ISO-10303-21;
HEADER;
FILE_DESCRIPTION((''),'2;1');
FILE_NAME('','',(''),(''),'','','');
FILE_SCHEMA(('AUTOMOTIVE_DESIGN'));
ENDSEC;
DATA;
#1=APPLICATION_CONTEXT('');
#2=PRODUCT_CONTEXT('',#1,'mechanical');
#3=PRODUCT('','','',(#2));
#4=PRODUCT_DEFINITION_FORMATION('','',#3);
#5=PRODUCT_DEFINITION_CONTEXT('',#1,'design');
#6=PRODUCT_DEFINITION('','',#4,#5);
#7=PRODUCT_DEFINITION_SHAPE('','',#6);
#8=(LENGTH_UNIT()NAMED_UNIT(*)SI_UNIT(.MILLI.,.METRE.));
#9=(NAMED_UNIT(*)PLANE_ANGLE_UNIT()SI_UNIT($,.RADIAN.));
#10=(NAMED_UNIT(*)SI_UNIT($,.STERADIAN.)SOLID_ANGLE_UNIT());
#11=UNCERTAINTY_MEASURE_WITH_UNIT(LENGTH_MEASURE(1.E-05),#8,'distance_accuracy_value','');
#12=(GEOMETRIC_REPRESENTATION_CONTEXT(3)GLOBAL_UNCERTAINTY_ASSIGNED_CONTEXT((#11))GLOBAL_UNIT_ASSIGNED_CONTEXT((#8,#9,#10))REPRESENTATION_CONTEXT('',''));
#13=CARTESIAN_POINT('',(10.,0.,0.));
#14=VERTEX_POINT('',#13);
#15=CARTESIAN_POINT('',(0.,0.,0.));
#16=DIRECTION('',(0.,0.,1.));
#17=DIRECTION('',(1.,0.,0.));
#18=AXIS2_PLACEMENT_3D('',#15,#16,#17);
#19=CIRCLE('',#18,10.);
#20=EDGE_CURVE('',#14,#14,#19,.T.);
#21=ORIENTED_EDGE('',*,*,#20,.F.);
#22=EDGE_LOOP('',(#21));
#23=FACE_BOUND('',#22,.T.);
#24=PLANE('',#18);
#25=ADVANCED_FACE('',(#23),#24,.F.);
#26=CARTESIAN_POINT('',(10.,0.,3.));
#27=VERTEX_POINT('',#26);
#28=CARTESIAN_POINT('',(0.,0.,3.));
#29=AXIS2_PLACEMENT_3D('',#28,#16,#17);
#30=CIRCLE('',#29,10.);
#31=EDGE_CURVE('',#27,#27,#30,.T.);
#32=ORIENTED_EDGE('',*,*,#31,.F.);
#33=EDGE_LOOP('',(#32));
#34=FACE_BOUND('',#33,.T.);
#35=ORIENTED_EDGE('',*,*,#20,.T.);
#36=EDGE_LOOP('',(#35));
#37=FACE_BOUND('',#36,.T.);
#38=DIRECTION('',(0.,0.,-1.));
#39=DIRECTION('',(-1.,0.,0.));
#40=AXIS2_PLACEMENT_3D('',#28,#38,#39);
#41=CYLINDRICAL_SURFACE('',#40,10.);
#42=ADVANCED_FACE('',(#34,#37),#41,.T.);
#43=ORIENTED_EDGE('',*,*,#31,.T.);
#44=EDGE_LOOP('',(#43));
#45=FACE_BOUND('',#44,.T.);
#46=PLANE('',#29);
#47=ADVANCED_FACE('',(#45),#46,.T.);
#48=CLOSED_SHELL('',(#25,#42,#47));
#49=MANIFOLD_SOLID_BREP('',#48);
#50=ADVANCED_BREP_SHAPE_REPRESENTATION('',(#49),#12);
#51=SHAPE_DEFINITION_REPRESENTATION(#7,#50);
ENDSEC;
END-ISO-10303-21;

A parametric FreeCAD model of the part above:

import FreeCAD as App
import Part
import Sketcher
Q = App.Units.Quantity

doc = App.newDocument("Part")
body = doc.addObject("PartDesign::Body", "Body")

# Sketch on XY plane
sketch1 = body.newObject("Sketcher::SketchObject", "Sketch")
sketch1.AttachmentSupport = (doc.getObject("XY_Plane"), [""])
sketch1.MapMode = "FlatFace"
sketch1.addGeometry(Part.Circle(App.Vector(0, 0, 0), App.Vector(0, 0, 1), 10), False)
sketch1.addConstraint([
    Sketcher.Constraint("Coincident", 0, 3, -1, 1),
    Sketcher.Constraint("Diameter", 0, Q("20 mm")),
])
pad1 = body.newObject("PartDesign::Pad", "Pad")
pad1.Profile = sketch1
pad1.Length = 3

doc.recompute()
